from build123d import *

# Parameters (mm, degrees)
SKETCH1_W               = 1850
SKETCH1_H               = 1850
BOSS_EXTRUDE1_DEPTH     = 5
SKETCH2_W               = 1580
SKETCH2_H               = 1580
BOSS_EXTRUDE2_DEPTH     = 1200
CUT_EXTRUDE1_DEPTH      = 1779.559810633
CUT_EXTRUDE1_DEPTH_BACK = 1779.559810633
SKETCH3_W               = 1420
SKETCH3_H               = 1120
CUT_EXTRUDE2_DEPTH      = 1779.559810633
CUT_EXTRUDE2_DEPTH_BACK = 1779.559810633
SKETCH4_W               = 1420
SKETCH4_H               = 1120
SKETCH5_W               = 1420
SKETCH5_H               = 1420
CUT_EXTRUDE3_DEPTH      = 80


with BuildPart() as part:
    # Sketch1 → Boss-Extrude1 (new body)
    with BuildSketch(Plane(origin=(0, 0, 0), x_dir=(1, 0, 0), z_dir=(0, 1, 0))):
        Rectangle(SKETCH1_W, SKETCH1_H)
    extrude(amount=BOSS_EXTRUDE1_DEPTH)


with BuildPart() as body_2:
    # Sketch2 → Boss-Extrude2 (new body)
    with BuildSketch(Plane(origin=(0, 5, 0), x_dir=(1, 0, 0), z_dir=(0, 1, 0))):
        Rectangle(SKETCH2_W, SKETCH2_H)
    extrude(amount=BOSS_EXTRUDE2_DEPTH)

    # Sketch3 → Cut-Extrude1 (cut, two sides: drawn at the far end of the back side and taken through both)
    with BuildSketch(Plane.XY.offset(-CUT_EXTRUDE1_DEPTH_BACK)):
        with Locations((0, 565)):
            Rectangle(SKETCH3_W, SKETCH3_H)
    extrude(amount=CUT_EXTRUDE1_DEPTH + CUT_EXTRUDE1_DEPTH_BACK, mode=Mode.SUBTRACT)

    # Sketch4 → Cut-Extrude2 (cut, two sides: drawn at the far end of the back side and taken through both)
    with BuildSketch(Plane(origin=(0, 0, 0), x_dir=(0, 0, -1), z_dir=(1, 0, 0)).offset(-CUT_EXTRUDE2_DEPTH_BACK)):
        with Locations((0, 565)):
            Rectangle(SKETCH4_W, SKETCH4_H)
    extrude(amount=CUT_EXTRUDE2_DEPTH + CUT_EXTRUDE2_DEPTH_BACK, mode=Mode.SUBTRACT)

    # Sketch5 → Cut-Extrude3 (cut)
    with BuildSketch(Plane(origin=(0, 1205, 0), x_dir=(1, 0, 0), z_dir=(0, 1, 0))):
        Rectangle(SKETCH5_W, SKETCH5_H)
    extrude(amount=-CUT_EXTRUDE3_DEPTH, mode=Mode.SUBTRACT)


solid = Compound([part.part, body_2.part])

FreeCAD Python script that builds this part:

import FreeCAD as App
import Part
import Sketcher
from FreeCAD import Vector


def add_polygon(sketch, points):
    """Adds a closed chain of lines whose ends are joined by coincident constraints."""
    first, n = sketch.GeometryCount, len(points)
    for a, b in zip(points, points[1:] + points[:1]):
        sketch.addGeometry(Part.LineSegment(App.Vector(*a, 0), App.Vector(*b, 0)), False)
    for i in range(n):
        sketch.addConstraint(Sketcher.Constraint("Coincident", first + i, 2, first + (i + 1) % n, 1))

doc = App.newDocument("Part")
body = doc.addObject("PartDesign::Body", "Body")

sketch1 = body.newObject("Sketcher::SketchObject", "Sketch")
sketch1.AttachmentSupport = (doc.getObject("XZ_Plane"), [""])
sketch1.MapMode = "FlatFace"
add_polygon(sketch1, [(-925, -925), (-925, 925), (925, 925), (925, -925)])
sketch1.addConstraint([
    Sketcher.Constraint("Vertical", 0),
    Sketcher.Constraint("Horizontal", 1),
    Sketcher.Constraint("Vertical", 2),
    Sketcher.Constraint("Horizontal", 3),
    Sketcher.Constraint("Symmetric", 0, 2, 2, 2, -1, 1),
    Sketcher.Constraint("Equal", 3, 0),
    Sketcher.Constraint("DistanceX", 1, 1, 1, 2, 1850.0),
])
pad1 = body.newObject("PartDesign::Pad", "Pad")
pad1.Profile = sketch1
pad1.Length = 5
pad1.Reversed = True
body2 = doc.addObject("PartDesign::Body", "Body001")

sketch2 = body2.newObject("Sketcher::SketchObject", "Sketch001")
sketch2.AttachmentSupport = (doc.getObject("XZ_Plane001"), [""])
sketch2.MapMode = "FlatFace"
sketch2.AttachmentOffset = App.Placement(Vector(0, 0, -5), App.Rotation())
add_polygon(sketch2, [(-790, -790), (-790, 790), (790, 790), (790, -790)])
sketch2.addConstraint([
    Sketcher.Constraint("Vertical", 0),
    Sketcher.Constraint("Horizontal", 1),
    Sketcher.Constraint("Vertical", 2),
    Sketcher.Constraint("Horizontal", 3),
    Sketcher.Constraint("Symmetric", 0, 2, 2, 2, -1, 1),
    Sketcher.Constraint("Equal", 3, 0),
    Sketcher.Constraint("DistanceX", 1, 1, 1, 2, 1580.0),
])
pad2 = body2.newObject("PartDesign::Pad", "Pad001")
pad2.Profile = sketch2
pad2.Length = 1200
pad2.Reversed = True

sketch3 = body2.newObject("Sketcher::SketchObject", "Sketch002")
sketch3.AttachmentSupport = (doc.getObject("XY_Plane001"), [""])
sketch3.MapMode = "FlatFace"
add_polygon(sketch3, [(-710, 1125), (-710, 5), (710, 5), (710, 1125)])
sketch3.addConstraint([
    Sketcher.Constraint("Vertical", 0),
    Sketcher.Constraint("Horizontal", 1),
    Sketcher.Constraint("Vertical", 2),
    Sketcher.Constraint("Horizontal", 3),
    Sketcher.Constraint("DistanceX", 1, 1, 1, 2, 1420.0),
    Sketcher.Constraint("DistanceY", 0, 2, 0, 1, 1120.0),
    Sketcher.Constraint("DistanceX", 0, 2, -1, 1, 710.0),
    Sketcher.Constraint("DistanceY", -1, 1, 0, 2, 5.0),
])
pocket1 = body2.newObject("PartDesign::Pocket", "Pocket")
pocket1.Profile = sketch3
pocket1.Type = "ThroughAll"
pocket1.Midplane = True

sketch4 = body2.newObject("Sketcher::SketchObject", "Sketch003")
sketch4.AttachmentSupport = (doc.getObject("YZ_Plane001"), [""])
sketch4.MapMode = "FlatFace"
add_polygon(sketch4, [(1125, 710), (5, 710), (5, -710), (1125, -710)])
sketch4.addConstraint([
    Sketcher.Constraint("Horizontal", 0),
    Sketcher.Constraint("Vertical", 1),
    Sketcher.Constraint("Horizontal", 2),
    Sketcher.Constraint("Vertical", 3),
    Sketcher.Constraint("DistanceX", 0, 2, 0, 1, 1120.0),
    Sketcher.Constraint("DistanceY", 1, 2, 1, 1, 1420.0),
    Sketcher.Constraint("DistanceX", -1, 1, 0, 2, 5.0),
    Sketcher.Constraint("DistanceY", -1, 1, 0, 2, 710.0),
])
pocket2 = body2.newObject("PartDesign::Pocket", "Pocket001")
pocket2.Profile = sketch4
pocket2.Type = "ThroughAll"
pocket2.Midplane = True

sketch5 = body2.newObject("Sketcher::SketchObject", "Sketch004")
sketch5.AttachmentSupport = (doc.getObject("XZ_Plane001"), [""])
sketch5.MapMode = "FlatFace"
sketch5.AttachmentOffset = App.Placement(Vector(0, 0, -1205), App.Rotation())
add_polygon(sketch5, [(-710, -710), (-710, 710), (710, 710), (710, -710)])
sketch5.addConstraint([
    Sketcher.Constraint("Vertical", 0),
    Sketcher.Constraint("Horizontal", 1),
    Sketcher.Constraint("Vertical", 2),
    Sketcher.Constraint("Horizontal", 3),
    Sketcher.Constraint("Symmetric", 0, 2, 2, 2, -1, 1),
    Sketcher.Constraint("Equal", 3, 0),
    Sketcher.Constraint("DistanceX", 1, 1, 1, 2, 1420.0),
])
pocket3 = body2.newObject("PartDesign::Pocket", "Pocket002")
pocket3.Profile = sketch5
pocket3.Length = 80
pocket3.Reversed = True

doc.recompute()
